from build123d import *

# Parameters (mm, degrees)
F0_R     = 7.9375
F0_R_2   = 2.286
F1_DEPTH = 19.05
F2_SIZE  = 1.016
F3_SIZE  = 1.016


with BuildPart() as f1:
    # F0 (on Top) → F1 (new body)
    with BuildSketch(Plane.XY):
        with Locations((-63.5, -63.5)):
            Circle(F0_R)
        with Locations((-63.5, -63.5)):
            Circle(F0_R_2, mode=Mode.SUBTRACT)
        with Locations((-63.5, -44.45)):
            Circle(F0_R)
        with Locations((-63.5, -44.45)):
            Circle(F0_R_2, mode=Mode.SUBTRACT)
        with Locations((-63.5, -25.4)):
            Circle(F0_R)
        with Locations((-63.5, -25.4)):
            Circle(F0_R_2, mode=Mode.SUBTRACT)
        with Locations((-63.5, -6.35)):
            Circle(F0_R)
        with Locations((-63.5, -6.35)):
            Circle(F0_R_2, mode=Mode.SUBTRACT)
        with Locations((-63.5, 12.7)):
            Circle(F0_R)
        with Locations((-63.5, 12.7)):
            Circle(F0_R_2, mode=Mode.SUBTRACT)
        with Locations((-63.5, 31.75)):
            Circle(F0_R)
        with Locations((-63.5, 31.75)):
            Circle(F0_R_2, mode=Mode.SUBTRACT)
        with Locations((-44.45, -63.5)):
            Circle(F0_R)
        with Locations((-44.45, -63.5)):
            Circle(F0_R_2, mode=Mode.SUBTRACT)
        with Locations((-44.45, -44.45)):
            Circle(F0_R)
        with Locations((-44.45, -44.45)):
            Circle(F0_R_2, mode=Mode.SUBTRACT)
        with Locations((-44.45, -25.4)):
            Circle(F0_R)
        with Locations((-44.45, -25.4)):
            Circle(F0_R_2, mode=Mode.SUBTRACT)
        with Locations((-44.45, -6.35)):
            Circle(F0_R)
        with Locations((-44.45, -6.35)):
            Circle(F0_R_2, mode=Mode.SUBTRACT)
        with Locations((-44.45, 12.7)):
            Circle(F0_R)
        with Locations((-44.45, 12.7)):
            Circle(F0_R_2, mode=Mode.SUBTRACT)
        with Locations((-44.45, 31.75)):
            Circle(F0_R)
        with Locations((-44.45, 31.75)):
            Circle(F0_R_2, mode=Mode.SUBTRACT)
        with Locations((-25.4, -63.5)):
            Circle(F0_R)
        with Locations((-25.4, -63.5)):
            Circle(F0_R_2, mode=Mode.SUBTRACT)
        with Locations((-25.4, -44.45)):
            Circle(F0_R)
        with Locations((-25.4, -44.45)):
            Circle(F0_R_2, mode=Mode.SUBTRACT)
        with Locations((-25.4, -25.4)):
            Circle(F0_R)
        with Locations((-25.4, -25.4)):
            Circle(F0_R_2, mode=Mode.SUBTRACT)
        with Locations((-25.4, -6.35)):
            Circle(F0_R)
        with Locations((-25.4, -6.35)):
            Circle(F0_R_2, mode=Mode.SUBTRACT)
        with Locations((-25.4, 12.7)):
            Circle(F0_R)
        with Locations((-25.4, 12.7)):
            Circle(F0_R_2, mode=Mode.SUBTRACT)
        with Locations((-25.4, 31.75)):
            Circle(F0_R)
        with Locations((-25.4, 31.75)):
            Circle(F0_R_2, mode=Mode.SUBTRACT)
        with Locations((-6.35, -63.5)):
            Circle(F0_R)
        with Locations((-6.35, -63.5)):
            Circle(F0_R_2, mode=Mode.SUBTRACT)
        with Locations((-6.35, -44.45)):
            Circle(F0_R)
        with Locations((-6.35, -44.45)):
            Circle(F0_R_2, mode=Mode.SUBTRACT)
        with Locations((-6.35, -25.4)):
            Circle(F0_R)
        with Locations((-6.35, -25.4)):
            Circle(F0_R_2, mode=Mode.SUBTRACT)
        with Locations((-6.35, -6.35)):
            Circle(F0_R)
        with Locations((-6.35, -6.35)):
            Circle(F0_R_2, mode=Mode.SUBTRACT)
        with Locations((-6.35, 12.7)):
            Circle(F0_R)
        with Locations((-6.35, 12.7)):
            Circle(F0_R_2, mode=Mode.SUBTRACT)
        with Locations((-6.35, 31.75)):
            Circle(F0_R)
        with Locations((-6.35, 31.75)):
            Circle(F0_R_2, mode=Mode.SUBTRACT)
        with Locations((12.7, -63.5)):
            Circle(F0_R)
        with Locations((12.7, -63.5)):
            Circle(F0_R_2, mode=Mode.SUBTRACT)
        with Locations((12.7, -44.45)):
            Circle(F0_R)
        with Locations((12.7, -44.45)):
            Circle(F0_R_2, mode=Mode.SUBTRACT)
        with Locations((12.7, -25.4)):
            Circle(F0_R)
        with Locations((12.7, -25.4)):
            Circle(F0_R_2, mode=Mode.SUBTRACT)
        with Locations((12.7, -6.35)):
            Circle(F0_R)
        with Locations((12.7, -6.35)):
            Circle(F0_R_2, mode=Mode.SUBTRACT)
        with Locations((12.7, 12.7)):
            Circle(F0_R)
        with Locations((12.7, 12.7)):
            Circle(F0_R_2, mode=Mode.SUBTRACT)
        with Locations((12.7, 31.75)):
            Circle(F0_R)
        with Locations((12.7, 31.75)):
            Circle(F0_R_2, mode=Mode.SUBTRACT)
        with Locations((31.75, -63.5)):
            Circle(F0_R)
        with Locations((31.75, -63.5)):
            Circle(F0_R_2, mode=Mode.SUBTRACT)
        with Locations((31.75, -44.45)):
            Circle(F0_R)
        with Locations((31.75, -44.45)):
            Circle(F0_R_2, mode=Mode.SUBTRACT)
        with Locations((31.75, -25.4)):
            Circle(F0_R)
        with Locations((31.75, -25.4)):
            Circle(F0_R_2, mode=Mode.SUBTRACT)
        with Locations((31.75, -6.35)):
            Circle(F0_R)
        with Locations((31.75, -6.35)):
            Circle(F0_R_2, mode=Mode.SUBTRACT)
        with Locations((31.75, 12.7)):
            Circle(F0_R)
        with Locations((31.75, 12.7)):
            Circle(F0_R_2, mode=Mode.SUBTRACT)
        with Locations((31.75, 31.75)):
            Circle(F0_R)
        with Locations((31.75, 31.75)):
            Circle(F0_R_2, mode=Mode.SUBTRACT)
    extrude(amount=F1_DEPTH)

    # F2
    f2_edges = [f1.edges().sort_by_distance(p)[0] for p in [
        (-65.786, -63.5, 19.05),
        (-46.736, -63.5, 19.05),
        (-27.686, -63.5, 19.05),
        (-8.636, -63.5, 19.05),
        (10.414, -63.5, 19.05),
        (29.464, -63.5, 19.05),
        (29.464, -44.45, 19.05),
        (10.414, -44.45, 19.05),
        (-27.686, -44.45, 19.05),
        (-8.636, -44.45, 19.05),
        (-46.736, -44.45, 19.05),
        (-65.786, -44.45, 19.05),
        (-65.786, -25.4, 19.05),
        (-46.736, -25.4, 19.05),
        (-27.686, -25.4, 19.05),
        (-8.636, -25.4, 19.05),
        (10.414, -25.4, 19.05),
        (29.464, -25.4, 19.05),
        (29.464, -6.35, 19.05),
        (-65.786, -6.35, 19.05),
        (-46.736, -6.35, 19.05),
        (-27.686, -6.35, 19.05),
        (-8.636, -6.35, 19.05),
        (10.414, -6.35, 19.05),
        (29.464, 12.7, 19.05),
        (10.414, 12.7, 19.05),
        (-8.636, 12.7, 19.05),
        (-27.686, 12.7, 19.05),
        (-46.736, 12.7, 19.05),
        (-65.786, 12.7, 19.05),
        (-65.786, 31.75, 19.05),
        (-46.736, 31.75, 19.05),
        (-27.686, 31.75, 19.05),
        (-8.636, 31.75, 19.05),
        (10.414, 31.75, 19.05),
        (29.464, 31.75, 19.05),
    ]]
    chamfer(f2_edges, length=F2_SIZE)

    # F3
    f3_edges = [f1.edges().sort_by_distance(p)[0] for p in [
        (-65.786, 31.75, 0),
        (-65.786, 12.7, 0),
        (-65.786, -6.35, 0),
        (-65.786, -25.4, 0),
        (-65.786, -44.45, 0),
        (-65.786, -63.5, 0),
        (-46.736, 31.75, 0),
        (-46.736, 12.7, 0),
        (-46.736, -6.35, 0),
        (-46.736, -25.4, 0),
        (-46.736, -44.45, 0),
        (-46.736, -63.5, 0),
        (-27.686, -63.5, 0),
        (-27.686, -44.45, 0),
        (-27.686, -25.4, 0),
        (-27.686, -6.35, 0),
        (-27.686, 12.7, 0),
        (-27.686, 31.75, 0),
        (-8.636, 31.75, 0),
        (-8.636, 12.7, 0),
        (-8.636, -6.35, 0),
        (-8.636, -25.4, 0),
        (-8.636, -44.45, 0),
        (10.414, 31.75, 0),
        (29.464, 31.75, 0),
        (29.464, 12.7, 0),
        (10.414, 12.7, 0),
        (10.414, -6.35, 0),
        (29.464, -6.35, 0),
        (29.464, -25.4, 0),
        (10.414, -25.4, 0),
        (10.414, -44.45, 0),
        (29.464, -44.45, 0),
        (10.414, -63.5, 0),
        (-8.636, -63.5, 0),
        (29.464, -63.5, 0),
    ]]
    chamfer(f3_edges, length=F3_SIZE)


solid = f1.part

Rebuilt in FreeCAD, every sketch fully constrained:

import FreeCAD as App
import Part
import Sketcher

V = App.Vector
Q = App.Units.Quantity


def edges_at(feature, points):
    """Names of the edges that pass closest to the given points."""
    edges = feature.Shape.Edges
    near = lambda p: min(range(len(edges)), key=lambda i: edges[i].distToShape(Part.Vertex(*p))[0])
    return sorted({f"Edge{near(p) + 1}" for p in points})

doc = App.newDocument("Part")
params = doc.addObject("Spreadsheet::Sheet", "Params")
for row, (alias, value) in enumerate([
    ("sketch1_diameter", "0.18 in"),
    ("sketch1_diameter2", "0.625 in"),
    ("pad1_length", "0.75 in"),
    ("chamfer_size", "0.04 in"),
    ("chamfer2_size", "0.04 in"),
], start=1):
    params.set(f"A{row}", alias)
    params.set(f"B{row}", "=" + value)
    params.setAlias(f"B{row}", alias)

body = doc.addObject("PartDesign::Body", "Body")
body.AllowCompound = True

# Sketch on XY plane
sketch1 = body.newObject("Sketcher::SketchObject", "Sketch")
sketch1.AttachmentSupport = (doc.getObject("XY_Plane"), [""])
sketch1.MapMode = "FlatFace"
sketch1.addGeometry([
    Part.Circle(V(-63.5, -63.5, 0), V(0, 0, 1), 7.9375),  # 0
    Part.Circle(V(-63.5, -63.5, 0), V(0, 0, 1), 2.286),  # 1
    Part.Circle(V(-63.5, -44.45, 0), V(0, 0, 1), 7.9375),  # 2
    Part.Circle(V(-63.5, -44.45, 0), V(0, 0, 1), 2.286),  # 3
    Part.Circle(V(-63.5, -25.4, 0), V(0, 0, 1), 7.9375),  # 4
    Part.Circle(V(-63.5, -25.4, 0), V(0, 0, 1), 2.286),  # 5
    Part.Circle(V(-63.5, -6.35, 0), V(0, 0, 1), 7.9375),  # 6
    Part.Circle(V(-63.5, -6.35, 0), V(0, 0, 1), 2.286),  # 7
    Part.Circle(V(-63.5, 12.7, 0), V(0, 0, 1), 7.9375),  # 8
    Part.Circle(V(-63.5, 12.7, 0), V(0, 0, 1), 2.286),  # 9
    Part.Circle(V(-63.5, 31.75, 0), V(0, 0, 1), 7.9375),  # 10
    Part.Circle(V(-63.5, 31.75, 0), V(0, 0, 1), 2.286),  # 11
    Part.Circle(V(-44.45, -63.5, 0), V(0, 0, 1), 7.9375),  # 12
    Part.Circle(V(-44.45, -63.5, 0), V(0, 0, 1), 2.286),  # 13
    Part.Circle(V(-44.45, -44.45, 0), V(0, 0, 1), 7.9375),  # 14
    Part.Circle(V(-44.45, -44.45, 0), V(0, 0, 1), 2.286),  # 15
    Part.Circle(V(-44.45, -25.4, 0), V(0, 0, 1), 7.9375),  # 16
    Part.Circle(V(-44.45, -25.4, 0), V(0, 0, 1), 2.286),  # 17
    Part.Circle(V(-44.45, -6.35, 0), V(0, 0, 1), 7.9375),  # 18
    Part.Circle(V(-44.45, -6.35, 0), V(0, 0, 1), 2.286),  # 19
    Part.Circle(V(-44.45, 12.7, 0), V(0, 0, 1), 7.9375),  # 20
    Part.Circle(V(-44.45, 12.7, 0), V(0, 0, 1), 2.286),  # 21
    Part.Circle(V(-44.45, 31.75, 0), V(0, 0, 1), 7.9375),  # 22
    Part.Circle(V(-44.45, 31.75, 0), V(0, 0, 1), 2.286),  # 23
    Part.Circle(V(-25.4, -63.5, 0), V(0, 0, 1), 7.9375),  # 24
    Part.Circle(V(-25.4, -63.5, 0), V(0, 0, 1), 2.286),  # 25
    Part.Circle(V(-25.4, -44.45, 0), V(0, 0, 1), 7.9375),  # 26
    Part.Circle(V(-25.4, -44.45, 0), V(0, 0, 1), 2.286),  # 27
    Part.Circle(V(-25.4, -25.4, 0), V(0, 0, 1), 7.9375),  # 28
    Part.Circle(V(-25.4, -25.4, 0), V(0, 0, 1), 2.286),  # 29
    Part.Circle(V(-25.4, -6.35, 0), V(0, 0, 1), 7.9375),  # 30
    Part.Circle(V(-25.4, -6.35, 0), V(0, 0, 1), 2.286),  # 31
    Part.Circle(V(-25.4, 12.7, 0), V(0, 0, 1), 7.9375),  # 32
    Part.Circle(V(-25.4, 12.7, 0), V(0, 0, 1), 2.286),  # 33
    Part.Circle(V(-25.4, 31.75, 0), V(0, 0, 1), 7.9375),  # 34
    Part.Circle(V(-25.4, 31.75, 0), V(0, 0, 1), 2.286),  # 35
    Part.Circle(V(-6.35, -63.5, 0), V(0, 0, 1), 7.9375),  # 36
    Part.Circle(V(-6.35, -63.5, 0), V(0, 0, 1), 2.286),  # 37
    Part.Circle(V(-6.35, -44.45, 0), V(0, 0, 1), 7.9375),  # 38
    Part.Circle(V(-6.35, -44.45, 0), V(0, 0, 1), 2.286),  # 39
    Part.Circle(V(-6.35, -25.4, 0), V(0, 0, 1), 7.9375),  # 40
    Part.Circle(V(-6.35, -25.4, 0), V(0, 0, 1), 2.286),  # 41
    Part.Circle(V(-6.35, -6.35, 0), V(0, 0, 1), 7.9375),  # 42
    Part.Circle(V(-6.35, -6.35, 0), V(0, 0, 1), 2.286),  # 43
    Part.Circle(V(-6.35, 12.7, 0), V(0, 0, 1), 7.9375),  # 44
    Part.Circle(V(-6.35, 12.7, 0), V(0, 0, 1), 2.286),  # 45
    Part.Circle(V(-6.35, 31.75, 0), V(0, 0, 1), 7.9375),  # 46
    Part.Circle(V(-6.35, 31.75, 0), V(0, 0, 1), 2.286),  # 47
    Part.Circle(V(12.7, -63.5, 0), V(0, 0, 1), 7.9375),  # 48
    Part.Circle(V(12.7, -63.5, 0), V(0, 0, 1), 2.286),  # 49
    Part.Circle(V(12.7, -44.45, 0), V(0, 0, 1), 7.9375),  # 50
    Part.Circle(V(12.7, -44.45, 0), V(0, 0, 1), 2.286),  # 51
    Part.Circle(V(12.7, -25.4, 0), V(0, 0, 1), 7.9375),  # 52
    Part.Circle(V(12.7, -25.4, 0), V(0, 0, 1), 2.286),  # 53
    Part.Circle(V(12.7, -6.35, 0), V(0, 0, 1), 7.9375),  # 54
    Part.Circle(V(12.7, -6.35, 0), V(0, 0, 1), 2.286),  # 55
    Part.Circle(V(12.7, 12.7, 0), V(0, 0, 1), 7.9375),  # 56
    Part.Circle(V(12.7, 12.7, 0), V(0, 0, 1), 2.286),  # 57
    Part.Circle(V(12.7, 31.75, 0), V(0, 0, 1), 7.9375),  # 58
    Part.Circle(V(12.7, 31.75, 0), V(0, 0, 1), 2.286),  # 59
    Part.Circle(V(31.75, -63.5, 0), V(0, 0, 1), 7.9375),  # 60
    Part.Circle(V(31.75, -63.5, 0), V(0, 0, 1), 2.286),  # 61
    Part.Circle(V(31.75, -44.45, 0), V(0, 0, 1), 7.9375),  # 62
    Part.Circle(V(31.75, -44.45, 0), V(0, 0, 1), 2.286),  # 63
    Part.Circle(V(31.75, -25.4, 0), V(0, 0, 1), 7.9375),  # 64
    Part.Circle(V(31.75, -25.4, 0), V(0, 0, 1), 2.286),  # 65
    Part.Circle(V(31.75, -6.35, 0), V(0, 0, 1), 7.9375),  # 66
    Part.Circle(V(31.75, -6.35, 0), V(0, 0, 1), 2.286),  # 67
    Part.Circle(V(31.75, 12.7, 0), V(0, 0, 1), 7.9375),  # 68
    Part.Circle(V(31.75, 12.7, 0), V(0, 0, 1), 2.286),  # 69
    Part.Circle(V(31.75, 31.75, 0), V(0, 0, 1), 7.9375),  # 70
    Part.Circle(V(31.75, 31.75, 0), V(0, 0, 1), 2.286),  # 71
], False)
sketch1.addConstraint([
    Sketcher.Constraint("Coincident", 1, 3, 0, 3),
    Sketcher.Constraint("Coincident", 3, 3, 2, 3),
    Sketcher.Constraint("Coincident", 5, 3, 4, 3),
    Sketcher.Constraint("Coincident", 7, 3, 6, 3),
    Sketcher.Constraint("Coincident", 9, 3, 8, 3),
    Sketcher.Constraint("Coincident", 11, 3, 10, 3),
    Sketcher.Constraint("Coincident", 13, 3, 12, 3),
    Sketcher.Constraint("Coincident", 15, 3, 14, 3),
    Sketcher.Constraint("Coincident", 17, 3, 16, 3),
    Sketcher.Constraint("Coincident", 19, 3, 18, 3),
    Sketcher.Constraint("Coincident", 21, 3, 20, 3),
    Sketcher.Constraint("Coincident", 23, 3, 22, 3),
    Sketcher.Constraint("Coincident", 25, 3, 24, 3),
    Sketcher.Constraint("Coincident", 27, 3, 26, 3),
    Sketcher.Constraint("Coincident", 29, 3, 28, 3),
    Sketcher.Constraint("Coincident", 31, 3, 30, 3),
    Sketcher.Constraint("Coincident", 33, 3, 32, 3),
    Sketcher.Constraint("Coincident", 35, 3, 34, 3),
    Sketcher.Constraint("Coincident", 37, 3, 36, 3),
    Sketcher.Constraint("Coincident", 39, 3, 38, 3),
    Sketcher.Constraint("Coincident", 41, 3, 40, 3),
    Sketcher.Constraint("Coincident", 43, 3, 42, 3),
    Sketcher.Constraint("Coincident", 45, 3, 44, 3),
    Sketcher.Constraint("Coincident", 47, 3, 46, 3),
    Sketcher.Constraint("Coincident", 49, 3, 48, 3),
    Sketcher.Constraint("Coincident", 51, 3, 50, 3),
    Sketcher.Constraint("Coincident", 53, 3, 52, 3),
    Sketcher.Constraint("Coincident", 55, 3, 54, 3),
    Sketcher.Constraint("Coincident", 57, 3, 56, 3),
    Sketcher.Constraint("Coincident", 59, 3, 58, 3),
    Sketcher.Constraint("Coincident", 61, 3, 60, 3),
    Sketcher.Constraint("Coincident", 63, 3, 62, 3),
    Sketcher.Constraint("Coincident", 65, 3, 64, 3),
    Sketcher.Constraint("Coincident", 67, 3, 66, 3),
    Sketcher.Constraint("Coincident", 69, 3, 68, 3),
    Sketcher.Constraint("Coincident", 71, 3, 70, 3),
    Sketcher.Constraint("Equal", 0, 2),
    Sketcher.Constraint("Equal", 1, 3),
    Sketcher.Constraint("Equal", 2, 4),
    Sketcher.Constraint("Equal", 3, 5),
    Sketcher.Constraint("Equal", 4, 6),
    Sketcher.Constraint("Equal", 5, 7),
    Sketcher.Constraint("Equal", 6, 8),
    Sketcher.Constraint("Equal", 7, 9),
    Sketcher.Constraint("Equal", 8, 10),
    Sketcher.Constraint("Equal", 9, 11),
    Sketcher.Constraint("Equal", 10, 12),
    Sketcher.Constraint("Equal", 11, 13),
    Sketcher.Constraint("Equal", 12, 14),
    Sketcher.Constraint("Equal", 13, 15),
    Sketcher.Constraint("Equal", 14, 16),
    Sketcher.Constraint("Equal", 15, 17),
    Sketcher.Constraint("Equal", 16, 18),
    Sketcher.Constraint("Equal", 17, 19),
    Sketcher.Constraint("Equal", 18, 20),
    Sketcher.Constraint("Equal", 19, 21),
    Sketcher.Constraint("Equal", 20, 22),
    Sketcher.Constraint("Equal", 21, 23),
    Sketcher.Constraint("Equal", 22, 24),
    Sketcher.Constraint("Equal", 23, 25),
    Sketcher.Constraint("Equal", 24, 26),
    Sketcher.Constraint("Equal", 25, 27),
    Sketcher.Constraint("Equal", 26, 28),
    Sketcher.Constraint("Equal", 27, 29),
    Sketcher.Constraint("Equal", 28, 30),
    Sketcher.Constraint("Equal", 29, 31),
    Sketcher.Constraint("Equal", 30, 32),
    Sketcher.Constraint("Equal", 31, 33),
    Sketcher.Constraint("Equal", 32, 34),
    Sketcher.Constraint("Equal", 33, 35),
    Sketcher.Constraint("Equal", 34, 36),
    Sketcher.Constraint("Equal", 35, 37),
    Sketcher.Constraint("Equal", 36, 38),
    Sketcher.Constraint("Equal", 37, 39),
    Sketcher.Constraint("Equal", 38, 40),
    Sketcher.Constraint("Equal", 39, 41),
    Sketcher.Constraint("Equal", 40, 42),
    Sketcher.Constraint("Equal", 41, 43),
    Sketcher.Constraint("Equal", 42, 44),
    Sketcher.Constraint("Equal", 43, 45),
    Sketcher.Constraint("Equal", 44, 46),
    Sketcher.Constraint("Equal", 45, 47),
    Sketcher.Constraint("Equal", 46, 48),
    Sketcher.Constraint("Equal", 47, 49),
    Sketcher.Constraint("Equal", 48, 50),
    Sketcher.Constraint("Equal", 49, 51),
    Sketcher.Constraint("Equal", 50, 52),
    Sketcher.Constraint("Equal", 51, 53),
    Sketcher.Constraint("Equal", 52, 54),
    Sketcher.Constraint("Equal", 53, 55),
    Sketcher.Constraint("Equal", 54, 56),
    Sketcher.Constraint("Equal", 55, 57),
    Sketcher.Constraint("Equal", 56, 58),
    Sketcher.Constraint("Equal", 57, 59),
    Sketcher.Constraint("Equal", 58, 60),
    Sketcher.Constraint("Equal", 59, 61),
    Sketcher.Constraint("Equal", 60, 62),
    Sketcher.Constraint("Equal", 61, 63),
    Sketcher.Constraint("Equal", 62, 64),
    Sketcher.Constraint("Equal", 63, 65),
    Sketcher.Constraint("Equal", 64, 66),
    Sketcher.Constraint("Equal", 65, 67),
    Sketcher.Constraint("Equal", 66, 68),
    Sketcher.Constraint("Equal", 67, 69),
    Sketcher.Constraint("Equal", 68, 70),
    Sketcher.Constraint("Equal", 69, 71),
    Sketcher.Constraint("Horizontal", 1, 3, 12, 3),
    Sketcher.Constraint("Horizontal", 3, 3, 14, 3),
    Sketcher.Constraint("Horizontal", 5, 3, 16, 3),
    Sketcher.Constraint("Horizontal", 7, 3, 18, 3),
    Sketcher.Constraint("Horizontal", 9, 3, 20, 3),
    Sketcher.Constraint("Horizontal", 11, 3, 22, 3),
    Sketcher.Constraint("Horizontal", 13, 3, 24, 3),
    Sketcher.Constraint("Horizontal", 15, 3, 26, 3),
    Sketcher.Constraint("Horizontal", 17, 3, 28, 3),
    Sketcher.Constraint("Horizontal", 19, 3, 30, 3),
    Sketcher.Constraint("Horizontal", 21, 3, 32, 3),
    Sketcher.Constraint("Horizontal", 23, 3, 34, 3),
    Sketcher.Constraint("Horizontal", 25, 3, 36, 3),
    Sketcher.Constraint("Horizontal", 27, 3, 38, 3),
    Sketcher.Constraint("Horizontal", 29, 3, 40, 3),
    Sketcher.Constraint("Horizontal", 31, 3, 42, 3),
    Sketcher.Constraint("Horizontal", 33, 3, 44, 3),
    Sketcher.Constraint("Horizontal", 35, 3, 46, 3),
    Sketcher.Constraint("Horizontal", 37, 3, 48, 3),
    Sketcher.Constraint("Horizontal", 39, 3, 50, 3),
    Sketcher.Constraint("Horizontal", 41, 3, 52, 3),
    Sketcher.Constraint("Horizontal", 43, 3, 54, 3),
    Sketcher.Constraint("Horizontal", 45, 3, 56, 3),
    Sketcher.Constraint("Horizontal", 47, 3, 58, 3),
    Sketcher.Constraint("Horizontal", 49, 3, 60, 3),
    Sketcher.Constraint("Horizontal", 51, 3, 62, 3),
    Sketcher.Constraint("Horizontal", 53, 3, 64, 3),
    Sketcher.Constraint("Horizontal", 55, 3, 66, 3),
    Sketcher.Constraint("Horizontal", 57, 3, 68, 3),
    Sketcher.Constraint("Horizontal", 59, 3, 70, 3),
    Sketcher.Constraint("Vertical", 1, 3, 2, 3),
    Sketcher.Constraint("Vertical", 3, 3, 4, 3),
    Sketcher.Constraint("Vertical", 5, 3, 6, 3),
    Sketcher.Constraint("Vertical", 7, 3, 8, 3),
    Sketcher.Constraint("Vertical", 9, 3, 10, 3),
    Sketcher.Constraint("Vertical", 13, 3, 14, 3),
    Sketcher.Constraint("Vertical", 15, 3, 16, 3),
    Sketcher.Constraint("Vertical", 17, 3, 18, 3),
    Sketcher.Constraint("Vertical", 19, 3, 20, 3),
    Sketcher.Constraint("Vertical", 21, 3, 22, 3),
    Sketcher.Constraint("Vertical", 25, 3, 26, 3),
    Sketcher.Constraint("Vertical", 27, 3, 28, 3),
    Sketcher.Constraint("Vertical", 29, 3, 30, 3),
    Sketcher.Constraint("Vertical", 31, 3, 32, 3),
    Sketcher.Constraint("Vertical", 33, 3, 34, 3),
    Sketcher.Constraint("Vertical", 37, 3, 38, 3),
    Sketcher.Constraint("Vertical", 39, 3, 40, 3),
    Sketcher.Constraint("Vertical", 41, 3, 42, 3),
    Sketcher.Constraint("Vertical", 43, 3, 44, 3),
    Sketcher.Constraint("Vertical", 45, 3, 46, 3),
    Sketcher.Constraint("Vertical", 49, 3, 50, 3),
    Sketcher.Constraint("Vertical", 51, 3, 52, 3),
    Sketcher.Constraint("Vertical", 53, 3, 54, 3),
    Sketcher.Constraint("Vertical", 55, 3, 56, 3),
    Sketcher.Constraint("Vertical", 57, 3, 58, 3),
    Sketcher.Constraint("Vertical", 61, 3, 62, 3),
    Sketcher.Constraint("Vertical", 63, 3, 64, 3),
    Sketcher.Constraint("Vertical", 65, 3, 66, 3),
    Sketcher.Constraint("Vertical", 67, 3, 68, 3),
    Sketcher.Constraint("Vertical", 69, 3, 70, 3),
    Sketcher.Constraint("Diameter", 1, Q("0.18 in")),
    Sketcher.Constraint("Diameter", 0, Q("0.625 in")),
    Sketcher.Constraint("DistanceY", 4, 3, -1, 1, Q("1 in")),
    Sketcher.Constraint("DistanceX", 24, 3, -1, 1, Q("1 in")),
    Sketcher.Constraint("DistanceX", 0, 3, -1, 1, Q("2.5 in")),
    Sketcher.Constraint("DistanceY", 0, 3, -1, 1, Q("2.5 in")),
    Sketcher.Constraint("DistanceY", -1, 1, 8, 3, Q("0.5 in")),
    Sketcher.Constraint("DistanceX", -1, 1, 48, 3, Q("0.5 in")),
    Sketcher.Constraint("DistanceY", 2, 3, -1, 1, Q("1.75 in")),
    Sketcher.Constraint("DistanceY", 6, 3, -1, 1, Q("0.25 in")),
    Sketcher.Constraint("DistanceY", -1, 1, 10, 3, Q("1.25 in")),
    Sketcher.Constraint("DistanceX", 12, 3, -1, 1, Q("1.75 in")),
    Sketcher.Constraint("DistanceX", 36, 3, -1, 1, Q("0.25 in")),
    Sketcher.Constraint("DistanceX", -1, 1, 60, 3, Q("1.25 in")),
])
sketch1.setExpression("Constraints[166]", "Params.sketch1_diameter")
sketch1.setExpression("Constraints[167]", "Params.sketch1_diameter2")
pad1 = body.newObject("PartDesign::Pad", "Pad")
pad1.Profile = sketch1
pad1.setExpression("Length", "Params.pad1_length")
doc.recompute()

chamfer = body.newObject("PartDesign::Chamfer", "Chamfer")
chamfer.Base = (pad1, edges_at(pad1, [
    (-65.786, -63.5, 19.05),
    (-46.736, -63.5, 19.05),
    (-27.686, -63.5, 19.05),
    (-8.636, -63.5, 19.05),
    (10.414, -63.5, 19.05),
    (29.464, -63.5, 19.05),
    (29.464, -44.45, 19.05),
    (10.414, -44.45, 19.05),
    (-27.686, -44.45, 19.05),
    (-8.636, -44.45, 19.05),
    (-46.736, -44.45, 19.05),
    (-65.786, -44.45, 19.05),
    (-65.786, -25.4, 19.05),
    (-46.736, -25.4, 19.05),
    (-27.686, -25.4, 19.05),
    (-8.636, -25.4, 19.05),
    (10.414, -25.4, 19.05),
    (29.464, -25.4, 19.05),
    (29.464, -6.35, 19.05),
    (-65.786, -6.35, 19.05),
    (-46.736, -6.35, 19.05),
    (-27.686, -6.35, 19.05),
    (-8.636, -6.35, 19.05),
    (10.414, -6.35, 19.05),
    (29.464, 12.7, 19.05),
    (10.414, 12.7, 19.05),
    (-8.636, 12.7, 19.05),
    (-27.686, 12.7, 19.05),
    (-46.736, 12.7, 19.05),
    (-65.786, 12.7, 19.05),
    (-65.786, 31.75, 19.05),
    (-46.736, 31.75, 19.05),
    (-27.686, 31.75, 19.05),
    (-8.636, 31.75, 19.05),
    (10.414, 31.75, 19.05),
    (29.464, 31.75, 19.05),
]))
chamfer.setExpression("Size", "Params.chamfer_size")
doc.recompute()

chamfer2 = body.newObject("PartDesign::Chamfer", "Chamfer001")
chamfer2.Base = (chamfer, edges_at(chamfer, [
    (-65.786, 31.75, 0),
    (-65.786, 12.7, 0),
    (-65.786, -6.35, 0),
    (-65.786, -25.4, 0),
    (-65.786, -44.45, 0),
    (-65.786, -63.5, 0),
    (-46.736, 31.75, 0),
    (-46.736, 12.7, 0),
    (-46.736, -6.35, 0),
    (-46.736, -25.4, 0),
    (-46.736, -44.45, 0),
    (-46.736, -63.5, 0),
    (-27.686, -63.5, 0),
    (-27.686, -44.45, 0),
    (-27.686, -25.4, 0),
    (-27.686, -6.35, 0),
    (-27.686, 12.7, 0),
    (-27.686, 31.75, 0),
    (-8.636, 31.75, 0),
    (-8.636, 12.7, 0),
    (-8.636, -6.35, 0),
    (-8.636, -25.4, 0),
    (-8.636, -44.45, 0),
    (10.414, 31.75, 0),
    (29.464, 31.75, 0),
    (29.464, 12.7, 0),
    (10.414, 12.7, 0),
    (10.414, -6.35, 0),
    (29.464, -6.35, 0),
    (29.464, -25.4, 0),
    (10.414, -25.4, 0),
    (10.414, -44.45, 0),
    (29.464, -44.45, 0),
    (10.414, -63.5, 0),
    (-8.636, -63.5, 0),
    (29.464, -63.5, 0),
]))
chamfer2.setExpression("Size", "Params.chamfer2_size")

doc.recompute()
